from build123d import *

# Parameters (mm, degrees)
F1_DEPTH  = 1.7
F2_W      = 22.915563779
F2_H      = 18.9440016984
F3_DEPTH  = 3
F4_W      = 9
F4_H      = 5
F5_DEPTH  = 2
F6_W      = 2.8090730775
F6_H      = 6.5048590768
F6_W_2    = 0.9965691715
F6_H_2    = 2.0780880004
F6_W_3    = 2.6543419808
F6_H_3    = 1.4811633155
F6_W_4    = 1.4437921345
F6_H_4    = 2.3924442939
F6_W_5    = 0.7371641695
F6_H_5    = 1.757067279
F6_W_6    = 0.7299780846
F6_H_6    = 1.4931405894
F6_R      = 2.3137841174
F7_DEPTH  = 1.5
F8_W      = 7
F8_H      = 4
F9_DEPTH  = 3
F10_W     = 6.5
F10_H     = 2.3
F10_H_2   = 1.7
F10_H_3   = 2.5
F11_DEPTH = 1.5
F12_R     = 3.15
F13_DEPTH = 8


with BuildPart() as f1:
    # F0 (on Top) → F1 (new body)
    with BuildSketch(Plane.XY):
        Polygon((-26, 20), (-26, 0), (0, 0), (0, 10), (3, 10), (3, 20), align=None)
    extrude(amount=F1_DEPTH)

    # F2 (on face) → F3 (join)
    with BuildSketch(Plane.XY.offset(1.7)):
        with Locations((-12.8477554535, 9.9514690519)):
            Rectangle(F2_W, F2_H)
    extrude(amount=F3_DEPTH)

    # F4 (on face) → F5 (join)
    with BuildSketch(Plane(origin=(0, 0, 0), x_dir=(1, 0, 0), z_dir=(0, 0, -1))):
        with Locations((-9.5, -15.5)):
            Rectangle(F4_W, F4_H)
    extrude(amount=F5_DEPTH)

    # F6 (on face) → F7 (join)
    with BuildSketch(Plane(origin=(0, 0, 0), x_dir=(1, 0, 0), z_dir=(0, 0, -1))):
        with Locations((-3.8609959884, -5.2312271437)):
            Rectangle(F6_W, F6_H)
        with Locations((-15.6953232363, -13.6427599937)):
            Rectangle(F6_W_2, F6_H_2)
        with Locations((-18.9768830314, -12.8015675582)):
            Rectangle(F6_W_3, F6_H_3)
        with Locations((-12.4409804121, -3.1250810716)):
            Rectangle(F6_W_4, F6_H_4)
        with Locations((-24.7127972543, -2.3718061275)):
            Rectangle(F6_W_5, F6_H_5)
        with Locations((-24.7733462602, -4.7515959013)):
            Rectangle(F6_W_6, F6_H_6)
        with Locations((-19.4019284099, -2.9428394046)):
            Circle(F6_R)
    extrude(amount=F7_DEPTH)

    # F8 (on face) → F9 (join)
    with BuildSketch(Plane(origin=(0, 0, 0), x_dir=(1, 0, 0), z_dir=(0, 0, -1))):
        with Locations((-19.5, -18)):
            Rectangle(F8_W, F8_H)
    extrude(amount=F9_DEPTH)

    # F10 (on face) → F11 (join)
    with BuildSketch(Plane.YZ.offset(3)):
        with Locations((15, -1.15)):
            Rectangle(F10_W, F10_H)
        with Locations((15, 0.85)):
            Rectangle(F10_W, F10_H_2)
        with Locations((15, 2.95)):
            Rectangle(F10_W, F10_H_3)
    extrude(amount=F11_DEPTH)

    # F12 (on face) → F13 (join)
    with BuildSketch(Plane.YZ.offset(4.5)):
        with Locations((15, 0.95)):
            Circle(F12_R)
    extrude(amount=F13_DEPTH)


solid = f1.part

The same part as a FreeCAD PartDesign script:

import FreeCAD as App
import Part
import Sketcher

V = App.Vector
Q = App.Units.Quantity

doc = App.newDocument("Part")
params = doc.addObject("Spreadsheet::Sheet", "Params")
for row, (alias, value) in enumerate([
    ("sketch1_width", "26 mm"),
    ("sketch1_width2", "3 mm"),
    ("sketch1_height", "20 mm"),
    ("pad1_length", "1.7 mm"),
    ("pad2_length", "3 mm"),
    ("sketch3_width", "9 mm"),
    ("sketch3_height", "5 mm"),
    ("pad3_length", "2 mm"),
    ("pad4_length", "1.5 mm"),
    ("sketch5_width", "7 mm"),
    ("sketch5_height", "4 mm"),
    ("pad5_length", "3 mm"),
    ("sketch6_width", "6.5 mm"),
    ("pad6_length", "1.5 mm"),
    ("sketch7_diameter", "6.3 mm"),
    ("pad7_length", "8 mm"),
], start=1):
    params.set(f"A{row}", alias)
    params.set(f"B{row}", "=" + value)
    params.setAlias(f"B{row}", alias)

body = doc.addObject("PartDesign::Body", "Body")

sketch1 = doc.addObject("Sketcher::SketchObject", "Sketch")
body.addObject(sketch1)
sketch1.AttachmentSupport = (doc.XY_Plane, [""])
sketch1.MapMode = "FlatFace"
sketch1.addGeometry([
    Part.LineSegment(V(-26, 20, 0), V(-26, 0, 0)),
    Part.LineSegment(V(-26, 0, 0), V(0, 0, 0)),
    Part.LineSegment(V(0, 0, 0), V(0, 10, 0)),
    Part.LineSegment(V(0, 10, 0), V(3, 10, 0)),
    Part.LineSegment(V(3, 10, 0), V(3, 20, 0)),
    Part.LineSegment(V(3, 20, 0), V(-26, 20, 0)),
], False)
sketch1.addConstraint([
    Sketcher.Constraint("Coincident", 0, 2, 1, 1),
    Sketcher.Constraint("Coincident", 1, 2, 2, 1),
    Sketcher.Constraint("Coincident", 2, 2, 3, 1),
    Sketcher.Constraint("Coincident", 3, 2, 4, 1),
    Sketcher.Constraint("Coincident", 4, 2, 5, 1),
    Sketcher.Constraint("Coincident", 5, 2, 0, 1),
    Sketcher.Constraint("Vertical", 0),
    Sketcher.Constraint("Horizontal", 1),
    Sketcher.Constraint("Vertical", 2),
    Sketcher.Constraint("Horizontal", 3),
    Sketcher.Constraint("Vertical", 4),
    Sketcher.Constraint("Horizontal", 5),
    Sketcher.Constraint("Coincident", 1, 2, -1, 1),
    Sketcher.Constraint("Equal", 2, 4),
    Sketcher.Constraint("DistanceX", 1, 1, 1, 2, Q("26 mm")),
    Sketcher.Constraint("DistanceX", 3, 1, 3, 2, Q("3 mm")),
    Sketcher.Constraint("DistanceY", 0, 2, 0, 1, Q("20 mm")),
])
sketch1.setExpression("Constraints[14]", "Params.sketch1_width")
sketch1.setExpression("Constraints[15]", "Params.sketch1_width2")
sketch1.setExpression("Constraints[16]", "Params.sketch1_height")
pad1 = doc.addObject("PartDesign::Pad", "Pad")
body.addObject(pad1)
pad1.Profile = sketch1
pad1.setExpression("Length", "Params.pad1_length")

sketch2 = doc.addObject("Sketcher::SketchObject", "Sketch001")
body.addObject(sketch2)
sketch2.AttachmentSupport = (doc.XY_Plane, [""])
sketch2.MapMode = "FlatFace"
sketch2.AttachmentOffset = App.Placement(V(0, 0, 1.7), App.Rotation())
sketch2.addGeometry([
    Part.LineSegment(V(-24.305537, 19.42347, 0), V(-24.305537, 0.479468, 0)),
    Part.LineSegment(V(-24.305537, 0.479468, 0), V(-1.389974, 0.479468, 0)),
    Part.LineSegment(V(-1.389974, 0.479468, 0), V(-1.389974, 19.42347, 0)),
    Part.LineSegment(V(-1.389974, 19.42347, 0), V(-24.305537, 19.42347, 0)),
], False)
sketch2.addConstraint([
    Sketcher.Constraint("Coincident", 0, 2, 1, 1),
    Sketcher.Constraint("Coincident", 1, 2, 2, 1),
    Sketcher.Constraint("Coincident", 2, 2, 3, 1),
    Sketcher.Constraint("Coincident", 3, 2, 0, 1),
    Sketcher.Constraint("Vertical", 0),
    Sketcher.Constraint("Horizontal", 1),
    Sketcher.Constraint("Vertical", 2),
    Sketcher.Constraint("Horizontal", 3),
    Sketcher.Constraint("DistanceY", 0, 2, 0, 1, Q("18.944002 mm")),
    Sketcher.Constraint("DistanceX", 1, 1, 1, 2, Q("22.915564 mm")),
    Sketcher.Constraint("DistanceY", -1, 1, 0, 2, Q("0.479468 mm")),
    Sketcher.Constraint("DistanceX", 0, 2, -1, 1, Q("24.305537 mm")),
])
pad2 = doc.addObject("PartDesign::Pad", "Pad001")
body.addObject(pad2)
pad2.Profile = sketch2
pad2.setExpression("Length", "Params.pad2_length")

sketch3 = doc.addObject("Sketcher::SketchObject", "Sketch002")
body.addObject(sketch3)
sketch3.AttachmentSupport = (doc.XY_Plane, [""])
sketch3.MapMode = "FlatFace"
sketch3.addGeometry([
    Part.LineSegment(V(-14, 13, 0), V(-14, 18, 0)),
    Part.LineSegment(V(-14, 18, 0), V(-5, 18, 0)),
    Part.LineSegment(V(-5, 18, 0), V(-5, 13, 0)),
    Part.LineSegment(V(-5, 13, 0), V(-14, 13, 0)),
], False)
sketch3.addConstraint([
    Sketcher.Constraint("Coincident", 0, 2, 1, 1),
    Sketcher.Constraint("Coincident", 1, 2, 2, 1),
    Sketcher.Constraint("Coincident", 2, 2, 3, 1),
    Sketcher.Constraint("Coincident", 3, 2, 0, 1),
    Sketcher.Constraint("Vertical", 0),
    Sketcher.Constraint("Horizontal", 1),
    Sketcher.Constraint("Vertical", 2),
    Sketcher.Constraint("Horizontal", 3),
    Sketcher.Constraint("DistanceX", 1, 1, 1, 2, Q("9 mm")),
    Sketcher.Constraint("DistanceY", 0, 1, 0, 2, Q("5 mm")),
    Sketcher.Constraint("DistanceX", 0, 2, -1, 1, Q("14 mm")),
    Sketcher.Constraint("DistanceY", -1, 1, 0, 2, Q("18 mm")),
])
sketch3.setExpression("Constraints[8]", "Params.sketch3_width")
sketch3.setExpression("Constraints[9]", "Params.sketch3_height")
pad3 = doc.addObject("PartDesign::Pad", "Pad002")
body.addObject(pad3)
pad3.Profile = sketch3
pad3.setExpression("Length", "Params.pad3_length")
pad3.Reversed = True

sketch4 = doc.addObject("Sketcher::SketchObject", "Sketch003")
body.addObject(sketch4)
sketch4.AttachmentSupport = (doc.XY_Plane, [""])
sketch4.MapMode = "FlatFace"
sketch4.addGeometry([
    Part.LineSegment(V(-5.265533, 1.978798, 0), V(-5.265533, 8.483657, 0)),
    Part.LineSegment(V(-5.265533, 8.483657, 0), V(-2.456459, 8.483657, 0)),
    Part.LineSegment(V(-2.456459, 8.483657, 0), V(-2.456459, 1.978798, 0)),
    Part.LineSegment(V(-2.456459, 1.978798, 0), V(-5.265533, 1.978798, 0)),
    Part.LineSegment(V(-16.193608, 12.603716, 0), V(-16.193608, 14.681804, 0)),
    Part.LineSegment(V(-16.193608, 14.681804, 0), V(-15.197039, 14.681804, 0)),
    Part.LineSegment(V(-15.197039, 14.681804, 0), V(-15.197039, 12.603716, 0)),
    Part.LineSegment(V(-15.197039, 12.603716, 0), V(-16.193608, 12.603716, 0)),
    Part.LineSegment(V(-20.304054, 12.060986, 0), V(-20.304054, 13.542149, 0)),
    Part.LineSegment(V(-20.304054, 13.542149, 0), V(-17.649712, 13.542149, 0)),
    Part.LineSegment(V(-17.649712, 13.542149, 0), V(-17.649712, 12.060986, 0)),
    Part.LineSegment(V(-17.649712, 12.060986, 0), V(-20.304054, 12.060986, 0)),
    Part.LineSegment(V(-13.162876, 1.928859, 0), V(-13.162876, 4.321303, 0)),
    Part.LineSegment(V(-13.162876, 4.321303, 0), V(-11.719084, 4.321303, 0)),
    Part.LineSegment(V(-11.719084, 4.321303, 0), V(-11.719084, 1.928859, 0)),
    Part.LineSegment(V(-11.719084, 1.928859, 0), V(-13.162876, 1.928859, 0)),
    Part.LineSegment(V(-25.081379, 1.493272, 0), V(-25.081379, 3.25034, 0)),
    Part.LineSegment(V(-25.081379, 3.25034, 0), V(-24.344215, 3.25034, 0)),
    Part.LineSegment(V(-24.344215, 3.25034, 0), V(-24.344215, 1.493272, 0)),
    Part.LineSegment(V(-24.344215, 1.493272, 0), V(-25.081379, 1.493272, 0)),
    Part.LineSegment(V(-25.138335, 4.005026, 0), V(-25.138335, 5.498166, 0)),
    Part.LineSegment(V(-25.138335, 5.498166, 0), V(-24.408357, 5.498166, 0)),
    Part.LineSegment(V(-24.408357, 5.498166, 0), V(-24.408357, 4.005026, 0)),
    Part.LineSegment(V(-24.408357, 4.005026, 0), V(-25.138335, 4.005026, 0)),
    Part.Circle(V(-19.401928, 2.942839, 0), V(0, 0, 1), 2.313784),
], False)
sketch4.addConstraint([
    Sketcher.Constraint("Coincident", 0, 2, 1, 1),
    Sketcher.Constraint("Coincident", 1, 2, 2, 1),
    Sketcher.Constraint("Coincident", 2, 2, 3, 1),
    Sketcher.Constraint("Coincident", 3, 2, 0, 1),
    Sketcher.Constraint("Coincident", 4, 2, 5, 1),
    Sketcher.Constraint("Coincident", 5, 2, 6, 1),
    Sketcher.Constraint("Coincident", 6, 2, 7, 1),
    Sketcher.Constraint("Coincident", 7, 2, 4, 1),
    Sketcher.Constraint("Coincident", 8, 2, 9, 1),
    Sketcher.Constraint("Coincident", 9, 2, 10, 1),
    Sketcher.Constraint("Coincident", 10, 2, 11, 1),
    Sketcher.Constraint("Coincident", 11, 2, 8, 1),
    Sketcher.Constraint("Coincident", 12, 2, 13, 1),
    Sketcher.Constraint("Coincident", 13, 2, 14, 1),
    Sketcher.Constraint("Coincident", 14, 2, 15, 1),
    Sketcher.Constraint("Coincident", 15, 2, 12, 1),
    Sketcher.Constraint("Coincident", 16, 2, 17, 1),
    Sketcher.Constraint("Coincident", 17, 2, 18, 1),
    Sketcher.Constraint("Coincident", 18, 2, 19, 1),
    Sketcher.Constraint("Coincident", 19, 2, 16, 1),
    Sketcher.Constraint("Coincident", 20, 2, 21, 1),
    Sketcher.Constraint("Coincident", 21, 2, 22, 1),
    Sketcher.Constraint("Coincident", 22, 2, 23, 1),
    Sketcher.Constraint("Coincident", 23, 2, 20, 1),
    Sketcher.Constraint("Vertical", 0),
    Sketcher.Constraint("Horizontal", 1),
    Sketcher.Constraint("Vertical", 2),
    Sketcher.Constraint("Horizontal", 3),
    Sketcher.Constraint("Vertical", 4),
    Sketcher.Constraint("Horizontal", 5),
    Sketcher.Constraint("Vertical", 6),
    Sketcher.Constraint("Horizontal", 7),
    Sketcher.Constraint("Vertical", 8),
    Sketcher.Constraint("Horizontal", 9),
    Sketcher.Constraint("Vertical", 10),
    Sketcher.Constraint("Horizontal", 11),
    Sketcher.Constraint("Vertical", 12),
    Sketcher.Constraint("Horizontal", 13),
    Sketcher.Constraint("Vertical", 14),
    Sketcher.Constraint("Horizontal", 15),
    Sketcher.Constraint("Vertical", 16),
    Sketcher.Constraint("Horizontal", 17),
    Sketcher.Constraint("Vertical", 18),
    Sketcher.Constraint("Horizontal", 19),
    Sketcher.Constraint("Vertical", 20),
    Sketcher.Constraint("Horizontal", 21),
    Sketcher.Constraint("Vertical", 22),
    Sketcher.Constraint("Horizontal", 23),
    Sketcher.Constraint("Diameter", 24, Q("4.627568 mm")),
    Sketcher.Constraint("DistanceX", 5, 1, 5, 2, Q("0.996569 mm")),
    Sketcher.Constraint("DistanceX", 9, 1, 9, 2, Q("2.654342 mm")),
    Sketcher.Constraint("DistanceX", 21, 1, 21, 2, Q("0.729978 mm")),
    Sketcher.Constraint("DistanceY", 0, 1, 0, 2, Q("6.504859 mm")),
    Sketcher.Constraint("DistanceY", 4, 1, 4, 2, Q("2.078088 mm")),
    Sketcher.Constraint("DistanceY", 20, 1, 20, 2, Q("1.493141 mm")),
    Sketcher.Constraint("DistanceY", 24, 3, 16, 2, Q("0.3075 mm")),
    Sketcher.Constraint("DistanceX", 1, 1, 1, 2, Q("2.809073 mm")),
    Sketcher.Constraint("DistanceX", 13, 1, 13, 2, Q("1.443792 mm")),
    Sketcher.Constraint("DistanceX", 17, 1, 17, 2, Q("0.737164 mm")),
    Sketcher.Constraint("DistanceY", 8, 1, 8, 2, Q("1.481163 mm")),
    Sketcher.Constraint("DistanceY", 12, 1, 12, 2, Q("2.392444 mm")),
    Sketcher.Constraint("DistanceY", 16, 1, 16, 2, Q("1.757067 mm")),
    Sketcher.Constraint("DistanceX", 24, 3, -1, 1, Q("19.401928 mm")),
    Sketcher.Constraint("DistanceY", -1, 1, 24, 3, Q("2.942839 mm")),
    Sketcher.Constraint("DistanceX", 1, 2, -1, 1, Q("2.456459 mm")),
    Sketcher.Constraint("DistanceX", 5, 2, -1, 1, Q("15.197039 mm")),
    Sketcher.Constraint("DistanceY", -1, 1, 8, 2, Q("13.542149 mm")),
    Sketcher.Constraint("DistanceY", -1, 1, 14, 2, Q("1.928859 mm")),
    Sketcher.Constraint("DistanceX", 16, 2, -1, 1, Q("25.081379 mm")),
    Sketcher.Constraint("DistanceY", 2, 2, 24, 3, Q("0.964042 mm")),
    Sketcher.Constraint("DistanceY", 0, 2, 6, 2, Q("4.120059 mm")),
    Sketcher.Constraint("DistanceX", 24, 3, 12, 2, Q("6.239052 mm")),
    Sketcher.Constraint("DistanceX", 17, 2, 11, 2, Q("4.040161 mm")),
    Sketcher.Constraint("DistanceX", 20, 2, 17, 2, Q("0.79412 mm")),
    Sketcher.Constraint("DistanceY", -1, 1, 20, 2, Q("5.498166 mm")),
])
pad4 = doc.addObject("PartDesign::Pad", "Pad003")
body.addObject(pad4)
pad4.Profile = sketch4
pad4.setExpression("Length", "Params.pad4_length")
pad4.Reversed = True

sketch5 = doc.addObject("Sketcher::SketchObject", "Sketch004")
body.addObject(sketch5)
sketch5.AttachmentSupport = (doc.XY_Plane, [""])
sketch5.MapMode = "FlatFace"
sketch5.addGeometry([
    Part.LineSegment(V(-23, 16, 0), V(-23, 20, 0)),
    Part.LineSegment(V(-23, 20, 0), V(-16, 20, 0)),
    Part.LineSegment(V(-16, 20, 0), V(-16, 16, 0)),
    Part.LineSegment(V(-16, 16, 0), V(-23, 16, 0)),
], False)
sketch5.addConstraint([
    Sketcher.Constraint("Coincident", 0, 2, 1, 1),
    Sketcher.Constraint("Coincident", 1, 2, 2, 1),
    Sketcher.Constraint("Coincident", 2, 2, 3, 1),
    Sketcher.Constraint("Coincident", 3, 2, 0, 1),
    Sketcher.Constraint("Vertical", 0),
    Sketcher.Constraint("Horizontal", 1),
    Sketcher.Constraint("Vertical", 2),
    Sketcher.Constraint("Horizontal", 3),
    Sketcher.Constraint("DistanceX", 1, 1, 1, 2, Q("7 mm")),
    Sketcher.Constraint("DistanceY", 0, 1, 0, 2, Q("4 mm")),
    Sketcher.Constraint("DistanceX", 0, 2, -1, 1, Q("23 mm")),
    Sketcher.Constraint("DistanceY", -1, 1, 0, 2, Q("20 mm")),
])
sketch5.setExpression("Constraints[8]", "Params.sketch5_width")
sketch5.setExpression("Constraints[9]", "Params.sketch5_height")
pad5 = doc.addObject("PartDesign::Pad", "Pad004")
body.addObject(pad5)
pad5.Profile = sketch5
pad5.setExpression("Length", "Params.pad5_length")
pad5.Reversed = True

sketch6 = doc.addObject("Sketcher::SketchObject", "Sketch005")
body.addObject(sketch6)
sketch6.AttachmentSupport = (doc.YZ_Plane, [""])
sketch6.MapMode = "FlatFace"
sketch6.AttachmentOffset = App.Placement(V(0, 0, 3), App.Rotation())
sketch6.addGeometry([
    Part.LineSegment(V(11.75, -2.3, 0), V(18.25, -2.3, 0)),
    Part.LineSegment(V(18.25, -2.3, 0), V(18.25, 4.2, 0)),
    Part.LineSegment(V(18.25, 4.2, 0), V(11.75, 4.2, 0)),
    Part.LineSegment(V(11.75, 4.2, 0), V(11.75, -2.3, 0)),
], False)
sketch6.addConstraint([
    Sketcher.Constraint("Coincident", 0, 2, 1, 1),
    Sketcher.Constraint("Coincident", 1, 2, 2, 1),
    Sketcher.Constraint("Coincident", 2, 2, 3, 1),
    Sketcher.Constraint("Coincident", 3, 2, 0, 1),
    Sketcher.Constraint("Horizontal", 0),
    Sketcher.Constraint("Vertical", 1),
    Sketcher.Constraint("Horizontal", 2),
    Sketcher.Constraint("Vertical", 3),
    Sketcher.Constraint("Equal", 2, 1),
    Sketcher.Constraint("DistanceX", 0, 1, 0, 2, Q("6.5 mm")),
    Sketcher.Constraint("DistanceY", 0, 2, -1, 1, Q("2.3 mm")),
    Sketcher.Constraint("DistanceX", -1, 1, 0, 2, Q("18.25 mm")),
])
sketch6.setExpression("Constraints[9]", "Params.sketch6_width")
pad6 = doc.addObject("PartDesign::Pad", "Pad005")
body.addObject(pad6)
pad6.Profile = sketch6
pad6.setExpression("Length", "Params.pad6_length")

sketch7 = doc.addObject("Sketcher::SketchObject", "Sketch006")
body.addObject(sketch7)
sketch7.AttachmentSupport = (doc.YZ_Plane, [""])
sketch7.MapMode = "FlatFace"
sketch7.AttachmentOffset = App.Placement(V(0, 0, 4.5), App.Rotation())
sketch7.addGeometry(Part.Circle(V(15, 0.95, 0), V(0, 0, 1), 3.15), False)
sketch7.addConstraint([
    Sketcher.Constraint("Diameter", 0, Q("6.3 mm")),
    Sketcher.Constraint("DistanceX", -1, 1, 0, 3, Q("15 mm")),
    Sketcher.Constraint("DistanceY", -1, 1, 0, 3, Q("0.95 mm")),
])
sketch7.setExpression("Constraints[0]", "Params.sketch7_diameter")
pad7 = doc.addObject("PartDesign::Pad", "Pad006")
body.addObject(pad7)
pad7.Profile = sketch7
pad7.setExpression("Length", "Params.pad7_length")

doc.recompute()
